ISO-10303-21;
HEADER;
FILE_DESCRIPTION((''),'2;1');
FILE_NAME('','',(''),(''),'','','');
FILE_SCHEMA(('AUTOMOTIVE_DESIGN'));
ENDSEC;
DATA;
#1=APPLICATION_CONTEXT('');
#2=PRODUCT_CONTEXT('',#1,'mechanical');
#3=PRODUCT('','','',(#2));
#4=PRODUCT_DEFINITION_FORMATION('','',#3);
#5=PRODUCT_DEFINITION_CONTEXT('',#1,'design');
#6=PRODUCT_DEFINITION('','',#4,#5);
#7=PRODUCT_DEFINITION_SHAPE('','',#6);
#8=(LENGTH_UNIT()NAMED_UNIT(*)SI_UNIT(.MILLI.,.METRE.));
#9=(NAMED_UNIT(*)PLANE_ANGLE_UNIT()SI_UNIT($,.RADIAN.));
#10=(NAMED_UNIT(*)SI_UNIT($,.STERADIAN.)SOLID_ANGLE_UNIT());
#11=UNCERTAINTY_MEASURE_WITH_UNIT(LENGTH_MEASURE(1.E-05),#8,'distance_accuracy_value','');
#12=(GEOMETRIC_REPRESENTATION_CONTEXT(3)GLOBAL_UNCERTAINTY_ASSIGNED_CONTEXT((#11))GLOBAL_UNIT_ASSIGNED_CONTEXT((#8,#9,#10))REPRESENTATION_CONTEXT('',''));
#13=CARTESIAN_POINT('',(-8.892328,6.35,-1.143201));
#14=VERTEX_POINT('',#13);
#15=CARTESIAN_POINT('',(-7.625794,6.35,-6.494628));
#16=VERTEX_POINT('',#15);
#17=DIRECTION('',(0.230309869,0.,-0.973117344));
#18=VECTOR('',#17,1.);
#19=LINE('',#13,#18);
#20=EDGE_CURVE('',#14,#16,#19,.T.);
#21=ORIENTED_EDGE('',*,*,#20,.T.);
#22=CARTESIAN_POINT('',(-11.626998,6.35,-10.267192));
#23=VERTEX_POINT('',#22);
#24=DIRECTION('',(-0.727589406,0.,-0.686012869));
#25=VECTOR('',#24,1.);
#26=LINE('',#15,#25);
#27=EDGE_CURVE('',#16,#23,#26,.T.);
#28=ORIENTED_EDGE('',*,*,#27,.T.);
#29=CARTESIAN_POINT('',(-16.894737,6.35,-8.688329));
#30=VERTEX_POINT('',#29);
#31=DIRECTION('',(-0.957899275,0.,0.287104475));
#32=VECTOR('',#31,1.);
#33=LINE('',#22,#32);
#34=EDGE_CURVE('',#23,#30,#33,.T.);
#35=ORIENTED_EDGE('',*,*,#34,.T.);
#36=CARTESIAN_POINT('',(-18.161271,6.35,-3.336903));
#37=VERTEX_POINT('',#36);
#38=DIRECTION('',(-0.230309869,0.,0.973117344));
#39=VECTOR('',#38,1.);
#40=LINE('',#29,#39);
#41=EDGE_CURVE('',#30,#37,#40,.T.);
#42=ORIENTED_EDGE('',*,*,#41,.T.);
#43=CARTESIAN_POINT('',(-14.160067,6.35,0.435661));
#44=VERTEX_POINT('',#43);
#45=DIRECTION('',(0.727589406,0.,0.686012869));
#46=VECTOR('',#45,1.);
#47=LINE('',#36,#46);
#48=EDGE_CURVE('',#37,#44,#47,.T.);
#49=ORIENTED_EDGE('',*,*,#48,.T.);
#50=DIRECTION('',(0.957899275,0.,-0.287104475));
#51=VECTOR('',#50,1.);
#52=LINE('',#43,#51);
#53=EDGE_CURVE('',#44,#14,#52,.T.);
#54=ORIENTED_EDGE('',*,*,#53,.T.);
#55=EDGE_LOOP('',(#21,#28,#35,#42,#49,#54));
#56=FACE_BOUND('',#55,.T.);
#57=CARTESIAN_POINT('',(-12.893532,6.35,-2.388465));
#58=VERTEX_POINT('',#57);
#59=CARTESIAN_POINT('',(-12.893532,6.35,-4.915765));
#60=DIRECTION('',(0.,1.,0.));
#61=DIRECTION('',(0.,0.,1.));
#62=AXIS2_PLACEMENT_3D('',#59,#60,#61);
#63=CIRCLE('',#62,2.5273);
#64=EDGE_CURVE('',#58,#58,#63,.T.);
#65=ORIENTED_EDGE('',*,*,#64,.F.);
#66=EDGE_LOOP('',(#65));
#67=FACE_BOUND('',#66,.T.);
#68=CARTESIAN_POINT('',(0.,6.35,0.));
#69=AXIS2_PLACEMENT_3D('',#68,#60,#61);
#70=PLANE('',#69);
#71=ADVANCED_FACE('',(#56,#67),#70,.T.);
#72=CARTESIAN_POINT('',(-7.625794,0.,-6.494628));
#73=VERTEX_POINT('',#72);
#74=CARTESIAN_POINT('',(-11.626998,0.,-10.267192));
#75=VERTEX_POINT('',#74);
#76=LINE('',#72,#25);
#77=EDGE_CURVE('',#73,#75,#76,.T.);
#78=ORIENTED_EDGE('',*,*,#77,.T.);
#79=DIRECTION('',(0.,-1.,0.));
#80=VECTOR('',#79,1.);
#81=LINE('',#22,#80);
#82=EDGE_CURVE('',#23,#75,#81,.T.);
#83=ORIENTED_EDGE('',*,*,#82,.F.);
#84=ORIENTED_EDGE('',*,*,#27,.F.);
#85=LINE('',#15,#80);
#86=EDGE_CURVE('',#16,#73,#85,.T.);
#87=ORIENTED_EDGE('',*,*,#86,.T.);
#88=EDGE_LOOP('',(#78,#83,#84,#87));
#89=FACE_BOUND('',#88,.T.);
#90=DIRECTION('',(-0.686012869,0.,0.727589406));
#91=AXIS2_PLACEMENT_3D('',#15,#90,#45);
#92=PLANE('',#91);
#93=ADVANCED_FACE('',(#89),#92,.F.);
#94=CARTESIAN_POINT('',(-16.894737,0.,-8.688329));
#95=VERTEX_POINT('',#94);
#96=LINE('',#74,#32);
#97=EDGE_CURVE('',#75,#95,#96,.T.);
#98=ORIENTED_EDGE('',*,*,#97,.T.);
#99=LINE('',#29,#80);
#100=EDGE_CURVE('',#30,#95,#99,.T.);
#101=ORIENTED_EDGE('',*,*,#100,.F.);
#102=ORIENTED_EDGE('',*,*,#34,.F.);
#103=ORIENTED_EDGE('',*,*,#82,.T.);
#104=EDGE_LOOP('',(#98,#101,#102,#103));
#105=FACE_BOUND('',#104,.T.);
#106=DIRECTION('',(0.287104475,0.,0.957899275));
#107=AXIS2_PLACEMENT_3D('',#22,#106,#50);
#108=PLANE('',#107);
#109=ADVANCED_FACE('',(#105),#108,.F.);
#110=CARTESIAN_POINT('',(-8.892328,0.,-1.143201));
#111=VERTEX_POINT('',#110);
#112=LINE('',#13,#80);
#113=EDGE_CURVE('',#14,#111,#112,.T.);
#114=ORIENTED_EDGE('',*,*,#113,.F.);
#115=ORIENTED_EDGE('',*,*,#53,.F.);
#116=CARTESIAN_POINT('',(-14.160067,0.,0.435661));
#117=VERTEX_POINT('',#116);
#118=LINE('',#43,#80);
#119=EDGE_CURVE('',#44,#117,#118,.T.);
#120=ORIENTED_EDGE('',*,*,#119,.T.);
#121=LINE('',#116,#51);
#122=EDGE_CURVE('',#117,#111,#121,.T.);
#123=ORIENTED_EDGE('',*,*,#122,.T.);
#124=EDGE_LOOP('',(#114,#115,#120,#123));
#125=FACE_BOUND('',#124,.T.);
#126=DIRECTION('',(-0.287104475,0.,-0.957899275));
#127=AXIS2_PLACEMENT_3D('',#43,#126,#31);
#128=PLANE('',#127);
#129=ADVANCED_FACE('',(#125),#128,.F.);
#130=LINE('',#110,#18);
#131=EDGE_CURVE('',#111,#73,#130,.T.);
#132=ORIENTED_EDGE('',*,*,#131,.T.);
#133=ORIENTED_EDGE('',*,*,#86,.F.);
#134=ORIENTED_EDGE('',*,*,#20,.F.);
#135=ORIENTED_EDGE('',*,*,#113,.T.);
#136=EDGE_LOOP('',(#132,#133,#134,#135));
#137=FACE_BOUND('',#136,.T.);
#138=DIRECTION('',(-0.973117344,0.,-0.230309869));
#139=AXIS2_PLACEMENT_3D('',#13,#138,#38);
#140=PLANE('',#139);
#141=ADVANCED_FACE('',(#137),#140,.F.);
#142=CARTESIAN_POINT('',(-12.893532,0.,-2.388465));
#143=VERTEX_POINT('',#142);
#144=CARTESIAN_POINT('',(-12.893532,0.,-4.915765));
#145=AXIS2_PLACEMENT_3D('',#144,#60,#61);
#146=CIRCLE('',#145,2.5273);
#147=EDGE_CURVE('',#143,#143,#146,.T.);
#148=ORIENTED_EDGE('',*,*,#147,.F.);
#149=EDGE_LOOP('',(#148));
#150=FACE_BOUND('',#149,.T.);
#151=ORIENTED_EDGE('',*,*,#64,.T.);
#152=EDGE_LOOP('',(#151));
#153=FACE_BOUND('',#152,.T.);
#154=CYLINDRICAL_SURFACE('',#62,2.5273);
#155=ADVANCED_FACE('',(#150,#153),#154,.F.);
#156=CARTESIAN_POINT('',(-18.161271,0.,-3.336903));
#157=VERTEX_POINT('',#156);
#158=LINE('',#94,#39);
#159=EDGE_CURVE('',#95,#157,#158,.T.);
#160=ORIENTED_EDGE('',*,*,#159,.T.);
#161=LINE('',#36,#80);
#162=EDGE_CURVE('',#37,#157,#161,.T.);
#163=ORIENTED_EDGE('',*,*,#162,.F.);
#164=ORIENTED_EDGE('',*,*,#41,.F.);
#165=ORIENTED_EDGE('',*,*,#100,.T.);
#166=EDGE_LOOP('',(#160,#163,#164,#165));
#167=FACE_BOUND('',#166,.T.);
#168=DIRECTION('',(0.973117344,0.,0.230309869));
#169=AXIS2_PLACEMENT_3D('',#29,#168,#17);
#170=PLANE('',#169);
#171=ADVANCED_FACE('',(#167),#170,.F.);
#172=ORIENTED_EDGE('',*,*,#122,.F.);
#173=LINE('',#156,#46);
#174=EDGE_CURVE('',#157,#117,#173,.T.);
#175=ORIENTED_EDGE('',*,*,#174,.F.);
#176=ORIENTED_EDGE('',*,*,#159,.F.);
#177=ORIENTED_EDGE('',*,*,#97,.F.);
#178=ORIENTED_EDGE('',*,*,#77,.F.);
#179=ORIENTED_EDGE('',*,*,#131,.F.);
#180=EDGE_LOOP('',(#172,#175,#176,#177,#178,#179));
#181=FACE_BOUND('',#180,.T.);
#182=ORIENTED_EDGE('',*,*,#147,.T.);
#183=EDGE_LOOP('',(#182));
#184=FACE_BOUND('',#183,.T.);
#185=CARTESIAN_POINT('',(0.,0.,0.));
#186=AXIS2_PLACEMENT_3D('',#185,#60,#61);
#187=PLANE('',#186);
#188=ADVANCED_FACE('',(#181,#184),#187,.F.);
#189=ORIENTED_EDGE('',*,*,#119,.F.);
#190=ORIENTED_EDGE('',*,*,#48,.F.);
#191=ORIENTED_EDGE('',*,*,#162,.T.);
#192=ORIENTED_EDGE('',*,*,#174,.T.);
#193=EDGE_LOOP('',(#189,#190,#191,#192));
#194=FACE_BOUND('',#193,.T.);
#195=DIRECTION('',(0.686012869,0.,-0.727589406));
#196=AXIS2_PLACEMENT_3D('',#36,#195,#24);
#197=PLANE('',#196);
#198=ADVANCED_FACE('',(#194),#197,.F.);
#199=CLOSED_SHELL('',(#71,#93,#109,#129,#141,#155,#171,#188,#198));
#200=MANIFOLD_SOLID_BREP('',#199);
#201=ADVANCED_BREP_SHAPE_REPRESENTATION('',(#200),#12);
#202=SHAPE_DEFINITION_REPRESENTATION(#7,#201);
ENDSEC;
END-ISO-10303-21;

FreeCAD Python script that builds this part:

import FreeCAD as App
import Part
import Sketcher

V = App.Vector
Q = App.Units.Quantity

doc = App.newDocument("Part")
body = doc.addObject("PartDesign::Body", "Body")

sketch1 = body.newObject("Sketcher::SketchObject", "Sketch")
sketch1.AttachmentSupport = (doc.getObject("XZ_Plane"), [""])
sketch1.MapMode = "FlatFace"
sketch1.addGeometry([
    Part.LineSegment(V(-9, -1, 0), V(-8, -6, 0)),
    Part.LineSegment(V(-8, -6, 0), V(-12, -10, 0)),
    Part.LineSegment(V(-12, -10, 0), V(-17, -9, 0)),
    Part.LineSegment(V(-17, -9, 0), V(-18, -3, 0)),
    Part.LineSegment(V(-18, -3, 0), V(-14, 0, 0)),
    Part.LineSegment(V(-14, 0, 0), V(-9, -1, 0)),
], False)
sketch1.addConstraint([
    Sketcher.Constraint("Coincident", 0, 2, 1, 1),
    Sketcher.Constraint("Coincident", 1, 2, 2, 1),
    Sketcher.Constraint("Coincident", 2, 2, 3, 1),
    Sketcher.Constraint("Coincident", 3, 2, 4, 1),
    Sketcher.Constraint("Coincident", 4, 2, 5, 1),
    Sketcher.Constraint("Coincident", 5, 2, 0, 1),
    Sketcher.Constraint("Parallel", 0, 3),
    Sketcher.Constraint("Parallel", 1, 4),
    Sketcher.Constraint("Parallel", 2, 5),
    Sketcher.Constraint("Equal", 0, 1),
    Sketcher.Constraint("Equal", 1, 2),
    Sketcher.Constraint("Equal", 2, 3),
    Sketcher.Constraint("DistanceX", 1, 2, -1, 1, 11.626998),
    Sketcher.Constraint("DistanceY", 5, 2, -1, 1, 1.143201),
    Sketcher.Constraint("DistanceY", 2, 2, 0, 2, 2.193701),
    Sketcher.Constraint("Distance", 0, 5.499261),
    Sketcher.Constraint("DistanceY", 1, 2, -1, 1, 10.267192),
    Sketcher.Constraint("DistanceY", 2, 2, -1, 1, 8.688329),
])
pad1 = body.newObject("PartDesign::Pad", "Pad")
pad1.Profile = sketch1
pad1.Length = Q("0.25 in")
pad1.Reversed = True

sketch2 = body.newObject("Sketcher::SketchObject", "Sketch001")
sketch2.AttachmentSupport = (doc.getObject("XZ_Plane"), [""])
sketch2.MapMode = "FlatFace"
sketch2.AttachmentOffset = App.Placement(V(0, 0, -0.25 * 25.4), App.Rotation())
sketch2.addGeometry(Part.Circle(V(-12.9, -4.9, 0), V(0, 0, 1), 2.5), False)
sketch2.addConstraint([
    Sketcher.Constraint("Diameter", 0, Q("0.199 in")),
    Sketcher.Constraint("DistanceX", 0, 3, -1, 1, 12.893532),
    Sketcher.Constraint("DistanceY", 0, 3, -1, 1, 4.915765),
])
doc.recompute()
hole = body.newObject("PartDesign::Hole", "Hole")
hole.Profile = sketch2
hole.ThreadType = "None"
hole.Diameter = Q("0.199 in")
hole.DepthType = "ThroughAll"
hole.Reversed = True

doc.recompute()
